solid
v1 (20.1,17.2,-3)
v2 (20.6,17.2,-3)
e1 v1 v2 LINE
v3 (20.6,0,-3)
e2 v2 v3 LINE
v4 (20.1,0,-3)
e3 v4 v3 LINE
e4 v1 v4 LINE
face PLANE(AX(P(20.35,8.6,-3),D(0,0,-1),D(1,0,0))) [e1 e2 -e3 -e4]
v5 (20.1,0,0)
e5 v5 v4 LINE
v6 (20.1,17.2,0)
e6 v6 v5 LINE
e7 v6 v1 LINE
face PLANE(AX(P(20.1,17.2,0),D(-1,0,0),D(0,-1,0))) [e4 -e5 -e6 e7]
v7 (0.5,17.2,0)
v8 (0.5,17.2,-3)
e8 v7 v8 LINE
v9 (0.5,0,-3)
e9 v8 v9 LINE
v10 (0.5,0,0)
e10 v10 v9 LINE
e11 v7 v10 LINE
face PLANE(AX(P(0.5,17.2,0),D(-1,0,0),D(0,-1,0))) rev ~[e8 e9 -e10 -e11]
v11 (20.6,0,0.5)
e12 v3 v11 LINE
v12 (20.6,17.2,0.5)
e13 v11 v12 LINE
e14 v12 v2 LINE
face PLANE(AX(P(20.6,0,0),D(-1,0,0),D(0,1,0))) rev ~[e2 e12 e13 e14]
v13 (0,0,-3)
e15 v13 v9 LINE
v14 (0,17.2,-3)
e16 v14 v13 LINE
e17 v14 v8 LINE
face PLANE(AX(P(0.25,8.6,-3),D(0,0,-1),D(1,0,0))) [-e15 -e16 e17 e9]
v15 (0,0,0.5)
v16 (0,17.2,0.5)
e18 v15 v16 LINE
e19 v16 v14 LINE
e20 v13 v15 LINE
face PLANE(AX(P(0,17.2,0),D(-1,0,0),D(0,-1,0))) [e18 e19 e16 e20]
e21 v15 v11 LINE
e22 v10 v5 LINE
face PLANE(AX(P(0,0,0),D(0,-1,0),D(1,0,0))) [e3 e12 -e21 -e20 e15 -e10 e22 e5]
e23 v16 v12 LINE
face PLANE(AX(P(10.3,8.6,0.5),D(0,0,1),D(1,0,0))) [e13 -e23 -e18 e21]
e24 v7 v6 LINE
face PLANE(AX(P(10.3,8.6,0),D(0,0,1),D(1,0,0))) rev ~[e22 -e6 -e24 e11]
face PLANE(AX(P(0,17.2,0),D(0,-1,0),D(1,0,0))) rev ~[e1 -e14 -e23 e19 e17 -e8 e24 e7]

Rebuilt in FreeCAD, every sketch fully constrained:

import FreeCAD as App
import Part
import Sketcher
from FreeCAD import Vector
Q = App.Units.Quantity


def add_polygon(sketch, points):
    """Adds a closed chain of lines whose ends are joined by coincident constraints."""
    first, n = sketch.GeometryCount, len(points)
    for a, b in zip(points, points[1:] + points[:1]):
        sketch.addGeometry(Part.LineSegment(App.Vector(*a, 0), App.Vector(*b, 0)), False)
    for i in range(n):
        sketch.addConstraint(Sketcher.Constraint("Coincident", first + i, 2, first + (i + 1) % n, 1))

doc = App.newDocument("Part")
body = doc.addObject("PartDesign::Body", "Body")

# Sketch on XY plane
sketch1 = doc.addObject("Sketcher::SketchObject", "Sketch")
body.addObject(sketch1)
sketch1.AttachmentSupport = (doc.XY_Plane, [""])
sketch1.MapMode = "FlatFace"
add_polygon(sketch1, [(0, 17), (0, 0), (21, 0), (21, 17)])  # lines 0-3
sketch1.addConstraint([
    Sketcher.Constraint("Vertical", 0),
    Sketcher.Constraint("Horizontal", 1),
    Sketcher.Constraint("Vertical", 2),
    Sketcher.Constraint("Horizontal", 3),
    Sketcher.Constraint("Coincident", 0, 2, -1, 1),
    Sketcher.Constraint("DistanceX", 1, 1, 1, 2, Q("20.6 mm")),
    Sketcher.Constraint("DistanceY", 0, 2, 0, 1, Q("17.2 mm")),
])
pad1 = doc.addObject("PartDesign::Pad", "Pad")
body.addObject(pad1)
pad1.Profile = sketch1
pad1.Length = 0.5

# Sketch on XY plane
sketch2 = doc.addObject("Sketcher::SketchObject", "Sketch001")
body.addObject(sketch2)
sketch2.AttachmentSupport = (doc.XY_Plane, [""])
sketch2.MapMode = "FlatFace"
add_polygon(sketch2, [(0, 0), (0, 17.2), (0.5, 17.2), (0.5, 0)])  # lines 0-3
add_polygon(sketch2, [(20.1, 0), (20.1, 17.2), (20.6, 17.2), (20.6, 0)])  # lines 4-7
sketch2.addConstraint([
    Sketcher.Constraint("Vertical", 0),
    Sketcher.Constraint("Horizontal", 1),
    Sketcher.Constraint("Vertical", 2),
    Sketcher.Constraint("Horizontal", 3),
    Sketcher.Constraint("Vertical", 4),
    Sketcher.Constraint("Horizontal", 5),
    Sketcher.Constraint("Vertical", 6),
    Sketcher.Constraint("Horizontal", 7),
    Sketcher.Constraint("Coincident", 3, 2, -1, 1),
    Sketcher.Constraint("PointOnObject", 6, 2, -1),
    Sketcher.Constraint("Horizontal", 1, 2, 4, 2),
    Sketcher.Constraint("Equal", 3, 5),
    Sketcher.Constraint("DistanceX", 1, 1, 1, 2, Q("0.5 mm")),
    Sketcher.Constraint("DistanceY", 0, 1, 0, 2, Q("17.2 mm")),
    Sketcher.Constraint("DistanceX", -1, 1, 4, 2, Q("20.1 mm")),
])
pad2 = doc.addObject("PartDesign::Pad", "Pad001")
body.addObject(pad2)
pad2.Profile = sketch2
pad2.Length = 3
pad2.Reversed = True

doc.recompute()
